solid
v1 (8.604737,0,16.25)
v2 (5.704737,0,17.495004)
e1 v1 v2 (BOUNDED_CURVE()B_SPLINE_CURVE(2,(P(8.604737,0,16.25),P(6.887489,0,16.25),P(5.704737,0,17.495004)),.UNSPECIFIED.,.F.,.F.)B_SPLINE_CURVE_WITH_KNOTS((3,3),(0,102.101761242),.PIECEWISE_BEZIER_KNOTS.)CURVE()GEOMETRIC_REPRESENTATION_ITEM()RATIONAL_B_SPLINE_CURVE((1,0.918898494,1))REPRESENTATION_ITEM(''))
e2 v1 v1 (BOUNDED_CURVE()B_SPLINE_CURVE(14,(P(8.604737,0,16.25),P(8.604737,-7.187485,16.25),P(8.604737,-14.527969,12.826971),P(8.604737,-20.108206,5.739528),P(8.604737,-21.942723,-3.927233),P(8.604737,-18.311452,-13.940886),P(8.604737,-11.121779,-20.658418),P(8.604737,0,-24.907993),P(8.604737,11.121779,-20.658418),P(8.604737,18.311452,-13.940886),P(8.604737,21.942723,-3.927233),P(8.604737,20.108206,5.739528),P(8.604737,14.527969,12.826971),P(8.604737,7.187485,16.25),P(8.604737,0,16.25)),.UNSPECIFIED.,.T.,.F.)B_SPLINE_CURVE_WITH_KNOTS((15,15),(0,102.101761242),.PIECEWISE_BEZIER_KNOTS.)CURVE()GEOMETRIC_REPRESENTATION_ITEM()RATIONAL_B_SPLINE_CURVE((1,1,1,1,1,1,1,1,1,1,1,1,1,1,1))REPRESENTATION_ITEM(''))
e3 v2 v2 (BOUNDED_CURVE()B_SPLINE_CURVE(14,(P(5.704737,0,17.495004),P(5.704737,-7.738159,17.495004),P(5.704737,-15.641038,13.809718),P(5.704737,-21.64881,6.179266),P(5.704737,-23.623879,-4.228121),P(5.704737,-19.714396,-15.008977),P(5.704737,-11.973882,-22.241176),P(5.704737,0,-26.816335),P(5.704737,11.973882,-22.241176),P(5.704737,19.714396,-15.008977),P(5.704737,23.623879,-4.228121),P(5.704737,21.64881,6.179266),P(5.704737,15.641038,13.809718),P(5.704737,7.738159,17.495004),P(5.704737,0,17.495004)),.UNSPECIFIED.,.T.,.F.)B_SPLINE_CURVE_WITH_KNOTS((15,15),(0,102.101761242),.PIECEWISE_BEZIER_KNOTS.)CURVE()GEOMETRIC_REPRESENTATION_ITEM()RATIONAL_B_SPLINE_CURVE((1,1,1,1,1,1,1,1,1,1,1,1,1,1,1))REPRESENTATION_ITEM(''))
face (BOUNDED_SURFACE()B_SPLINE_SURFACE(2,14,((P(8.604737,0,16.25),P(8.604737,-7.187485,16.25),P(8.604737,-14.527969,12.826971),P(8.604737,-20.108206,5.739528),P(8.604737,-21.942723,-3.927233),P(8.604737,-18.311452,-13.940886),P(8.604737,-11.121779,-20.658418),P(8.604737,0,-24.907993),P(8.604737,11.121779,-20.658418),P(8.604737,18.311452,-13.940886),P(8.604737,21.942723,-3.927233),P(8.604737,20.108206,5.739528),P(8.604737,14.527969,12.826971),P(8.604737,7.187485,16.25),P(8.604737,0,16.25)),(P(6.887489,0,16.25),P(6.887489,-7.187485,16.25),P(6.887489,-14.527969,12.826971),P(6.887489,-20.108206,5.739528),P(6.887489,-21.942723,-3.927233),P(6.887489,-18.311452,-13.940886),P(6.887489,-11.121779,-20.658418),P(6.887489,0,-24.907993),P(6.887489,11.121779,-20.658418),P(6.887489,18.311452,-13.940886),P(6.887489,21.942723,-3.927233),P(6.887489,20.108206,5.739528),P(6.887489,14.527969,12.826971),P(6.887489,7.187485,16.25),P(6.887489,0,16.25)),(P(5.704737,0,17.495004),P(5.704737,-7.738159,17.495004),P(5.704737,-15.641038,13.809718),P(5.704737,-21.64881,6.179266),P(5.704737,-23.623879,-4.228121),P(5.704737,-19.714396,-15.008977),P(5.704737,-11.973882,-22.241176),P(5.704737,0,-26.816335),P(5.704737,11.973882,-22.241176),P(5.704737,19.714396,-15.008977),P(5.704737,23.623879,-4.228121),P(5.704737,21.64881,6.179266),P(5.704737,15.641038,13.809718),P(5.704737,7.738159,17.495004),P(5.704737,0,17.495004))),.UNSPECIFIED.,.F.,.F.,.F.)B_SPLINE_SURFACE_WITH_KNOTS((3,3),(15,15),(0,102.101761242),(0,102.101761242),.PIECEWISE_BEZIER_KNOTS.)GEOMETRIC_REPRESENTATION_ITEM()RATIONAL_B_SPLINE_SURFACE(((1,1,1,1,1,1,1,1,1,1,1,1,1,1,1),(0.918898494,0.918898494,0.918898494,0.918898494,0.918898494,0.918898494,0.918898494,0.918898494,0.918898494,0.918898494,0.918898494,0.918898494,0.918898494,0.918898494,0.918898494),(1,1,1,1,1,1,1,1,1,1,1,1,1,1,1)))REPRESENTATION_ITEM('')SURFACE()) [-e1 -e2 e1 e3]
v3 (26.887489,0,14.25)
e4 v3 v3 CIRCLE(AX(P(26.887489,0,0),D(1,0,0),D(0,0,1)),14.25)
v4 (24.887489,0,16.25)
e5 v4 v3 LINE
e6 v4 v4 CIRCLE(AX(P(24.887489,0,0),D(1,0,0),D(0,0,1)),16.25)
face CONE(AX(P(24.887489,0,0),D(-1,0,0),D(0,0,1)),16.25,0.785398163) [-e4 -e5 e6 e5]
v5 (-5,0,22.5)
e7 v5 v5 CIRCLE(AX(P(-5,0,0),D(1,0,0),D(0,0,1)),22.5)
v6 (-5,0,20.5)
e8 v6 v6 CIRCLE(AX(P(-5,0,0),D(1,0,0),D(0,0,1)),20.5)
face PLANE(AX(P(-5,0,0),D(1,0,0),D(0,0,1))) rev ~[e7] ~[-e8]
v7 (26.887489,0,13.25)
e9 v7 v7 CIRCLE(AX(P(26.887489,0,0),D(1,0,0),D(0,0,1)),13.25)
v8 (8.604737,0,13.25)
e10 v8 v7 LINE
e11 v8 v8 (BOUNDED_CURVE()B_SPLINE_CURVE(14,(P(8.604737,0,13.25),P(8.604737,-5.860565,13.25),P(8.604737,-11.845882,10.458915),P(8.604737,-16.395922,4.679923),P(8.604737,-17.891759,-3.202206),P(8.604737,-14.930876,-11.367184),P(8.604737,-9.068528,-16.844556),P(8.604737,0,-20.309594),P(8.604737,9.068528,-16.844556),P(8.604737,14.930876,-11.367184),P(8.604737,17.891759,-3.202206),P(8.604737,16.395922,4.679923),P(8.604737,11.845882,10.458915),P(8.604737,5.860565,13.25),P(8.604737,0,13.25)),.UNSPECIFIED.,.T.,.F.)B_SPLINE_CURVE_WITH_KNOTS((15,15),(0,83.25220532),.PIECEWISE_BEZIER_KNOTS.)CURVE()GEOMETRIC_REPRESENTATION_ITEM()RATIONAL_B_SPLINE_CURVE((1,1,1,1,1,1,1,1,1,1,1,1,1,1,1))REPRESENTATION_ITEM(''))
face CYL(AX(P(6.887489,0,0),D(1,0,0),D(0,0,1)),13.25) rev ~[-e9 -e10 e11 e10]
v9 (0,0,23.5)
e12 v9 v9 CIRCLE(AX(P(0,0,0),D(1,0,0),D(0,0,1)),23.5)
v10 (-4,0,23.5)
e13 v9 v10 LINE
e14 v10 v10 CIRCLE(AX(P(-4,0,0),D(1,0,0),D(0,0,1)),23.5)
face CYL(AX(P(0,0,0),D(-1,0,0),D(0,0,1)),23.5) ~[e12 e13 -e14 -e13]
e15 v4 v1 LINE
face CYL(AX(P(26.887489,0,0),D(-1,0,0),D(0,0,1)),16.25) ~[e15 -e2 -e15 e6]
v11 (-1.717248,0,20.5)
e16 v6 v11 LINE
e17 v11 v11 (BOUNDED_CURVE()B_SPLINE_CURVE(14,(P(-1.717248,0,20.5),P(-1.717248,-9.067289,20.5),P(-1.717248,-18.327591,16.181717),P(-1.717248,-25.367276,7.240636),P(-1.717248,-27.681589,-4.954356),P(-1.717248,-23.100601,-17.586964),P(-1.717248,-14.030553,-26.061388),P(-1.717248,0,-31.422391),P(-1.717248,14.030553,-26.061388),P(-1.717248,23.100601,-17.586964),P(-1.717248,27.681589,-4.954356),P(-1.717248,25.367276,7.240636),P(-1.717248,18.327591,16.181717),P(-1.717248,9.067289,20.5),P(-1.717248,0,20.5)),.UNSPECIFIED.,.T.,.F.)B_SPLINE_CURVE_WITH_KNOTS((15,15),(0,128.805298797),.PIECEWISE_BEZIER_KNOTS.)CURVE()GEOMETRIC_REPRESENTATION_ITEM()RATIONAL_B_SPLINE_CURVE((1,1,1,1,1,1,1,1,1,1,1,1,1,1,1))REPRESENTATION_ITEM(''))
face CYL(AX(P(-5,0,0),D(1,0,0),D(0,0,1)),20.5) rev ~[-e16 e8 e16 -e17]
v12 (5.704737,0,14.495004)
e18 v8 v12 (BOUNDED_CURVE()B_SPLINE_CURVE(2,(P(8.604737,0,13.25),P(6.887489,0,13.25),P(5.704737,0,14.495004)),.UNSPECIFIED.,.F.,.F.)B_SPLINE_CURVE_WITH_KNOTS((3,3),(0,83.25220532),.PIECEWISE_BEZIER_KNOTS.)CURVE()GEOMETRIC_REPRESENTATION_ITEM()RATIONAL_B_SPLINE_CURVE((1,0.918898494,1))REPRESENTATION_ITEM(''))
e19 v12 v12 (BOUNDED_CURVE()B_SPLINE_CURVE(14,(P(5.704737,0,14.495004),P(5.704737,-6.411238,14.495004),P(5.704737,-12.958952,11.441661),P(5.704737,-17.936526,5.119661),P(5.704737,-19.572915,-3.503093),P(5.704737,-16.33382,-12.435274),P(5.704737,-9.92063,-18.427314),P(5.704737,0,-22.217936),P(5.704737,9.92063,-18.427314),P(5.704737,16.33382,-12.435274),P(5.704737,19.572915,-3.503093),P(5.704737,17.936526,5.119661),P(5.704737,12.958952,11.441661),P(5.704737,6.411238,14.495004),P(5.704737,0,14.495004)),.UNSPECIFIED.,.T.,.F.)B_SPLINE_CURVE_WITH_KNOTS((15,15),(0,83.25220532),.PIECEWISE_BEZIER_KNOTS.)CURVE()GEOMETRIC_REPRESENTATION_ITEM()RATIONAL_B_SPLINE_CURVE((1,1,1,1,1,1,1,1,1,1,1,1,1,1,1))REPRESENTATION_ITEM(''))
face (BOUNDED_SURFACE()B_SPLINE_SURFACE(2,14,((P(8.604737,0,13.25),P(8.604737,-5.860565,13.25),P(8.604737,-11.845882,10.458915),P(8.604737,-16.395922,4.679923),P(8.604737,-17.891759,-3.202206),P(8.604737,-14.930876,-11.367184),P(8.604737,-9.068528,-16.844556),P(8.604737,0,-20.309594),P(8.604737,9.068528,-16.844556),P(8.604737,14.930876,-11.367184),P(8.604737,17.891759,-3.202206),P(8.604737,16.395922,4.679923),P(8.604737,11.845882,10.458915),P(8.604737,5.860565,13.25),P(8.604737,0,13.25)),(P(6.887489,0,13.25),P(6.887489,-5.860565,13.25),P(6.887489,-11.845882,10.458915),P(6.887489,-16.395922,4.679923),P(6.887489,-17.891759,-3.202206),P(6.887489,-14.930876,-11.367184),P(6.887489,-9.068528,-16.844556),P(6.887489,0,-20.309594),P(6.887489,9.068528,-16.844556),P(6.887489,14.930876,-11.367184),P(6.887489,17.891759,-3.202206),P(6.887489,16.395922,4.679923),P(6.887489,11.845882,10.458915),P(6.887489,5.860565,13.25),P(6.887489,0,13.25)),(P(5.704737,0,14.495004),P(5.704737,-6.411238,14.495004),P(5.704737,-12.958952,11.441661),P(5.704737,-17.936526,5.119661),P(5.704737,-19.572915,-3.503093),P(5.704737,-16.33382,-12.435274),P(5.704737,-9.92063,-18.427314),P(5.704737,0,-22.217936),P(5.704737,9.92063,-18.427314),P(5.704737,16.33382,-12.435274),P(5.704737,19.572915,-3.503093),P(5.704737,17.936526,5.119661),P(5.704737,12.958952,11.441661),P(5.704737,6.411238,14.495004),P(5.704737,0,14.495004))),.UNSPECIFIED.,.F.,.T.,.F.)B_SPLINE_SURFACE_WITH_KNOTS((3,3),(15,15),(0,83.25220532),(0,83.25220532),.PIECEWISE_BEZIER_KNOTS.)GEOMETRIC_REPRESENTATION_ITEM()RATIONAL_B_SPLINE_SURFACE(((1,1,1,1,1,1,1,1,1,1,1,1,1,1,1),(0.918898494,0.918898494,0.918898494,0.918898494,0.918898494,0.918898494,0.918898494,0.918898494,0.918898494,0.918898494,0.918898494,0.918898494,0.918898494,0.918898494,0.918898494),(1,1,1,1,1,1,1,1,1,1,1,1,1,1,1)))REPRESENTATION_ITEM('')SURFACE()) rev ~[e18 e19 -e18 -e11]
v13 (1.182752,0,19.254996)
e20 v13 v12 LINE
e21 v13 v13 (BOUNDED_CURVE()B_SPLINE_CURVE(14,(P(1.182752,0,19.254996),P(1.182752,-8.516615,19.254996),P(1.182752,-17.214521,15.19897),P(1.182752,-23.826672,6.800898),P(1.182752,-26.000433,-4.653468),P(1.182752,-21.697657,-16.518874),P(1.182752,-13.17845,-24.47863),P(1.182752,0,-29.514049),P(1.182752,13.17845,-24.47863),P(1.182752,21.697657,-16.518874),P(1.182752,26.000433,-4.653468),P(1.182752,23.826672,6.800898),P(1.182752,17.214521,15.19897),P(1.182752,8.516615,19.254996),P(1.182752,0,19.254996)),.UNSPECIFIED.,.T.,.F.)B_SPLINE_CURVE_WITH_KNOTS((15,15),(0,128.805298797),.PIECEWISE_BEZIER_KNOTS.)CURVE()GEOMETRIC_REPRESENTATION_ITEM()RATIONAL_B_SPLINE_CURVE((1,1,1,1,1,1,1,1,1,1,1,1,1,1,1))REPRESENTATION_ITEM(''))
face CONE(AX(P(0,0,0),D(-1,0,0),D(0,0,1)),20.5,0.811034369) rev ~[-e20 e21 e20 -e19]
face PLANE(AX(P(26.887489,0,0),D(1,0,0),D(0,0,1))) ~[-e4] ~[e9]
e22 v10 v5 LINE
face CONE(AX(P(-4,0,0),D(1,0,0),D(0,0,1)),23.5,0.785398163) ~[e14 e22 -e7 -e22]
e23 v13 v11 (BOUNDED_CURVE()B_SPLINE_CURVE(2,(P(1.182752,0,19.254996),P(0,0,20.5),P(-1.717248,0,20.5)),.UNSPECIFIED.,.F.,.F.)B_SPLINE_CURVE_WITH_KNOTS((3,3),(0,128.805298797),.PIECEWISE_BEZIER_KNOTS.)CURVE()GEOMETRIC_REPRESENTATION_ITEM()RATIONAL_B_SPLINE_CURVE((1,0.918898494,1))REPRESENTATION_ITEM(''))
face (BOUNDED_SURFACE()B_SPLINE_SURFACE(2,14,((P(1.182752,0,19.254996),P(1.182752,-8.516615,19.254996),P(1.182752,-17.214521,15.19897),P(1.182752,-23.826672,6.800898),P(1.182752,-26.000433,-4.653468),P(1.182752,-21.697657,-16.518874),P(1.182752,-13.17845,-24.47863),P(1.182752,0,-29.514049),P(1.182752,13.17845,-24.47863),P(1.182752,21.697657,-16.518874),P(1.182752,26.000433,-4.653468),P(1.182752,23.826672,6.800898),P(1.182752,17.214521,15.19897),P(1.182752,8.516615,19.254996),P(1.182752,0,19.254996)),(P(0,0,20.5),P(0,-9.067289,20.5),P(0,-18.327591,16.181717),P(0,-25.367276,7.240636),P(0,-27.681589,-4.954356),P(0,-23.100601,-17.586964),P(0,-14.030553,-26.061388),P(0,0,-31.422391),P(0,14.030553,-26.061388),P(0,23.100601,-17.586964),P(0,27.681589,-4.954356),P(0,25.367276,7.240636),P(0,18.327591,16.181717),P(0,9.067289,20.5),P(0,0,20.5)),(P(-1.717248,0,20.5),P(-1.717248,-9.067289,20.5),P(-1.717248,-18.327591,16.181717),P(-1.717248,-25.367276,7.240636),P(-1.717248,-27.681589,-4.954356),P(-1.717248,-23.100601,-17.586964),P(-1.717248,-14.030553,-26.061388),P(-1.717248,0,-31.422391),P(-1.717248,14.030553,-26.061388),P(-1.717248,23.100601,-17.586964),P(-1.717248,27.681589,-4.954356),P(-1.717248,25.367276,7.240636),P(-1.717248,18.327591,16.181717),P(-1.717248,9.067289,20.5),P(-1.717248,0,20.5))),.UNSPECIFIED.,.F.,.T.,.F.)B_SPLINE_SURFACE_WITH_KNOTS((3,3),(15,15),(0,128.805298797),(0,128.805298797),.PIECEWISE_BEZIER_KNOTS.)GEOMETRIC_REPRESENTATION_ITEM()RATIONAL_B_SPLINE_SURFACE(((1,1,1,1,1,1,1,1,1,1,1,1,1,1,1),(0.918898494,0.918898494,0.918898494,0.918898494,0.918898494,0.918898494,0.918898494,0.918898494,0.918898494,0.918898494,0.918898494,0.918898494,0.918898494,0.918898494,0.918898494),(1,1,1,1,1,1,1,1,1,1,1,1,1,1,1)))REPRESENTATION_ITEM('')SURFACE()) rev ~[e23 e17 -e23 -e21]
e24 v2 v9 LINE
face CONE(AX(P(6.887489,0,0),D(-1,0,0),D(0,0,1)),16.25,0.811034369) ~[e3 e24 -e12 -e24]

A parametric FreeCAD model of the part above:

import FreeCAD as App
import Part
import Sketcher


def edges_at(feature, points):
    """Names of the edges that pass closest to the given points."""
    edges = feature.Shape.Edges
    near = lambda p: min(range(len(edges)), key=lambda i: edges[i].distToShape(Part.Vertex(*p))[0])
    return sorted({f"Edge{near(p) + 1}" for p in points})


def add_polygon(sketch, points):
    """Adds a closed chain of lines whose ends are joined by coincident constraints."""
    first, n = sketch.GeometryCount, len(points)
    for a, b in zip(points, points[1:] + points[:1]):
        sketch.addGeometry(Part.LineSegment(App.Vector(*a, 0), App.Vector(*b, 0)), False)
    for i in range(n):
        sketch.addConstraint(Sketcher.Constraint("Coincident", first + i, 2, first + (i + 1) % n, 1))

doc = App.newDocument("Part")
params = doc.addObject("Spreadsheet::Sheet", "Params")
for row, (alias, value) in enumerate([
    ("sketch1_width", "5 mm"),
    ("sketch1_width2", "20 mm"),
    ("sketch1_height", "3 mm"),
    ("sketch1_length", "10 mm"),
    ("revolution_angle", "360 deg"),
    ("chamfer_size", "1 mm"),
    ("chamfer2_size", "2 mm"),
    ("fillet_radius", "4 mm"),
], start=1):
    params.set(f"A{row}", alias)
    params.set(f"B{row}", "=" + value)
    params.setAlias(f"B{row}", alias)

body = doc.addObject("PartDesign::Body", "Body")

sketch1 = body.newObject("Sketcher::SketchObject", "Sketch")
sketch1.AttachmentSupport = (doc.getObject("XZ_Plane"), [""])
sketch1.MapMode = "FlatFace"
add_polygon(sketch1, [(0, 23.5), (-5, 23.5), (-5, 20.5), (0, 20.5), (6.9, 13.2), (26.9, 13.2), (26.9, 16.2), (6.9, 16.2)])
sketch1.addConstraint(Sketcher.Constraint("Horizontal", 0))
sketch1.addConstraint(Sketcher.Constraint("Vertical", 1))
sketch1.addConstraint(Sketcher.Constraint("Horizontal", 2))
sketch1.addConstraint(Sketcher.Constraint("Horizontal", 4))
sketch1.addConstraint(Sketcher.Constraint("Vertical", 5))
sketch1.addConstraint(Sketcher.Constraint("Horizontal", 6))
sketch1.addConstraint(Sketcher.Constraint("PointOnObject", 2, 2, -2))
sketch1.addConstraint(Sketcher.Constraint("PointOnObject", 7, 2, -2))
sketch1.addConstraint(Sketcher.Constraint("Parallel", 3, 7))
sketch1.addConstraint(Sketcher.Constraint("Vertical", 3, 2, 6, 2))
sketch1.addConstraint(Sketcher.Constraint("DistanceX", 0, 2, 0, 1, 5.0))
sketch1.addConstraint(Sketcher.Constraint("DistanceX", 4, 1, 4, 2, 20.0))
sketch1.addConstraint(Sketcher.Constraint("DistanceY", 1, 2, 1, 1, 3.0))
sketch1.addConstraint(Sketcher.Constraint("Distance", 3, 10.0))
sketch1.addConstraint(Sketcher.Constraint("DistanceY", -1, 1, 0, 2, 23.5))
sketch1.addConstraint(Sketcher.Constraint("DistanceY", -1, 1, 3, 2, 13.25))
sketch1.setExpression("Constraints[18]", "Params.sketch1_width")
sketch1.setExpression("Constraints[19]", "Params.sketch1_width2")
sketch1.setExpression("Constraints[20]", "Params.sketch1_height")
sketch1.setExpression("Constraints[21]", "Params.sketch1_length")
revolution = body.newObject("PartDesign::Revolution", "Revolution")
revolution.Profile = sketch1
revolution.ReferenceAxis = (sketch1, ["H_Axis"])
revolution.setExpression("Angle", "Params.revolution_angle")
doc.recompute()

chamfer = body.newObject("PartDesign::Chamfer", "Chamfer")
chamfer.Base = (revolution, edges_at(revolution, [(-5, 0, -23.5)]))
chamfer.setExpression("Size", "Params.chamfer_size")
doc.recompute()

chamfer2 = body.newObject("PartDesign::Chamfer", "Chamfer001")
chamfer2.Base = (chamfer, edges_at(chamfer, [(26.887, 0, -16.25)]))
chamfer2.setExpression("Size", "Params.chamfer2_size")
doc.recompute()

fillet = body.newObject("PartDesign::Fillet", "Fillet")
fillet.Base = (chamfer2, edges_at(chamfer2, [(6.887, 0, -16.25), (6.887, 0, -13.25), (0, 0, -20.5)]))
fillet.setExpression("Radius", "Params.fillet_radius")

doc.recompute()
